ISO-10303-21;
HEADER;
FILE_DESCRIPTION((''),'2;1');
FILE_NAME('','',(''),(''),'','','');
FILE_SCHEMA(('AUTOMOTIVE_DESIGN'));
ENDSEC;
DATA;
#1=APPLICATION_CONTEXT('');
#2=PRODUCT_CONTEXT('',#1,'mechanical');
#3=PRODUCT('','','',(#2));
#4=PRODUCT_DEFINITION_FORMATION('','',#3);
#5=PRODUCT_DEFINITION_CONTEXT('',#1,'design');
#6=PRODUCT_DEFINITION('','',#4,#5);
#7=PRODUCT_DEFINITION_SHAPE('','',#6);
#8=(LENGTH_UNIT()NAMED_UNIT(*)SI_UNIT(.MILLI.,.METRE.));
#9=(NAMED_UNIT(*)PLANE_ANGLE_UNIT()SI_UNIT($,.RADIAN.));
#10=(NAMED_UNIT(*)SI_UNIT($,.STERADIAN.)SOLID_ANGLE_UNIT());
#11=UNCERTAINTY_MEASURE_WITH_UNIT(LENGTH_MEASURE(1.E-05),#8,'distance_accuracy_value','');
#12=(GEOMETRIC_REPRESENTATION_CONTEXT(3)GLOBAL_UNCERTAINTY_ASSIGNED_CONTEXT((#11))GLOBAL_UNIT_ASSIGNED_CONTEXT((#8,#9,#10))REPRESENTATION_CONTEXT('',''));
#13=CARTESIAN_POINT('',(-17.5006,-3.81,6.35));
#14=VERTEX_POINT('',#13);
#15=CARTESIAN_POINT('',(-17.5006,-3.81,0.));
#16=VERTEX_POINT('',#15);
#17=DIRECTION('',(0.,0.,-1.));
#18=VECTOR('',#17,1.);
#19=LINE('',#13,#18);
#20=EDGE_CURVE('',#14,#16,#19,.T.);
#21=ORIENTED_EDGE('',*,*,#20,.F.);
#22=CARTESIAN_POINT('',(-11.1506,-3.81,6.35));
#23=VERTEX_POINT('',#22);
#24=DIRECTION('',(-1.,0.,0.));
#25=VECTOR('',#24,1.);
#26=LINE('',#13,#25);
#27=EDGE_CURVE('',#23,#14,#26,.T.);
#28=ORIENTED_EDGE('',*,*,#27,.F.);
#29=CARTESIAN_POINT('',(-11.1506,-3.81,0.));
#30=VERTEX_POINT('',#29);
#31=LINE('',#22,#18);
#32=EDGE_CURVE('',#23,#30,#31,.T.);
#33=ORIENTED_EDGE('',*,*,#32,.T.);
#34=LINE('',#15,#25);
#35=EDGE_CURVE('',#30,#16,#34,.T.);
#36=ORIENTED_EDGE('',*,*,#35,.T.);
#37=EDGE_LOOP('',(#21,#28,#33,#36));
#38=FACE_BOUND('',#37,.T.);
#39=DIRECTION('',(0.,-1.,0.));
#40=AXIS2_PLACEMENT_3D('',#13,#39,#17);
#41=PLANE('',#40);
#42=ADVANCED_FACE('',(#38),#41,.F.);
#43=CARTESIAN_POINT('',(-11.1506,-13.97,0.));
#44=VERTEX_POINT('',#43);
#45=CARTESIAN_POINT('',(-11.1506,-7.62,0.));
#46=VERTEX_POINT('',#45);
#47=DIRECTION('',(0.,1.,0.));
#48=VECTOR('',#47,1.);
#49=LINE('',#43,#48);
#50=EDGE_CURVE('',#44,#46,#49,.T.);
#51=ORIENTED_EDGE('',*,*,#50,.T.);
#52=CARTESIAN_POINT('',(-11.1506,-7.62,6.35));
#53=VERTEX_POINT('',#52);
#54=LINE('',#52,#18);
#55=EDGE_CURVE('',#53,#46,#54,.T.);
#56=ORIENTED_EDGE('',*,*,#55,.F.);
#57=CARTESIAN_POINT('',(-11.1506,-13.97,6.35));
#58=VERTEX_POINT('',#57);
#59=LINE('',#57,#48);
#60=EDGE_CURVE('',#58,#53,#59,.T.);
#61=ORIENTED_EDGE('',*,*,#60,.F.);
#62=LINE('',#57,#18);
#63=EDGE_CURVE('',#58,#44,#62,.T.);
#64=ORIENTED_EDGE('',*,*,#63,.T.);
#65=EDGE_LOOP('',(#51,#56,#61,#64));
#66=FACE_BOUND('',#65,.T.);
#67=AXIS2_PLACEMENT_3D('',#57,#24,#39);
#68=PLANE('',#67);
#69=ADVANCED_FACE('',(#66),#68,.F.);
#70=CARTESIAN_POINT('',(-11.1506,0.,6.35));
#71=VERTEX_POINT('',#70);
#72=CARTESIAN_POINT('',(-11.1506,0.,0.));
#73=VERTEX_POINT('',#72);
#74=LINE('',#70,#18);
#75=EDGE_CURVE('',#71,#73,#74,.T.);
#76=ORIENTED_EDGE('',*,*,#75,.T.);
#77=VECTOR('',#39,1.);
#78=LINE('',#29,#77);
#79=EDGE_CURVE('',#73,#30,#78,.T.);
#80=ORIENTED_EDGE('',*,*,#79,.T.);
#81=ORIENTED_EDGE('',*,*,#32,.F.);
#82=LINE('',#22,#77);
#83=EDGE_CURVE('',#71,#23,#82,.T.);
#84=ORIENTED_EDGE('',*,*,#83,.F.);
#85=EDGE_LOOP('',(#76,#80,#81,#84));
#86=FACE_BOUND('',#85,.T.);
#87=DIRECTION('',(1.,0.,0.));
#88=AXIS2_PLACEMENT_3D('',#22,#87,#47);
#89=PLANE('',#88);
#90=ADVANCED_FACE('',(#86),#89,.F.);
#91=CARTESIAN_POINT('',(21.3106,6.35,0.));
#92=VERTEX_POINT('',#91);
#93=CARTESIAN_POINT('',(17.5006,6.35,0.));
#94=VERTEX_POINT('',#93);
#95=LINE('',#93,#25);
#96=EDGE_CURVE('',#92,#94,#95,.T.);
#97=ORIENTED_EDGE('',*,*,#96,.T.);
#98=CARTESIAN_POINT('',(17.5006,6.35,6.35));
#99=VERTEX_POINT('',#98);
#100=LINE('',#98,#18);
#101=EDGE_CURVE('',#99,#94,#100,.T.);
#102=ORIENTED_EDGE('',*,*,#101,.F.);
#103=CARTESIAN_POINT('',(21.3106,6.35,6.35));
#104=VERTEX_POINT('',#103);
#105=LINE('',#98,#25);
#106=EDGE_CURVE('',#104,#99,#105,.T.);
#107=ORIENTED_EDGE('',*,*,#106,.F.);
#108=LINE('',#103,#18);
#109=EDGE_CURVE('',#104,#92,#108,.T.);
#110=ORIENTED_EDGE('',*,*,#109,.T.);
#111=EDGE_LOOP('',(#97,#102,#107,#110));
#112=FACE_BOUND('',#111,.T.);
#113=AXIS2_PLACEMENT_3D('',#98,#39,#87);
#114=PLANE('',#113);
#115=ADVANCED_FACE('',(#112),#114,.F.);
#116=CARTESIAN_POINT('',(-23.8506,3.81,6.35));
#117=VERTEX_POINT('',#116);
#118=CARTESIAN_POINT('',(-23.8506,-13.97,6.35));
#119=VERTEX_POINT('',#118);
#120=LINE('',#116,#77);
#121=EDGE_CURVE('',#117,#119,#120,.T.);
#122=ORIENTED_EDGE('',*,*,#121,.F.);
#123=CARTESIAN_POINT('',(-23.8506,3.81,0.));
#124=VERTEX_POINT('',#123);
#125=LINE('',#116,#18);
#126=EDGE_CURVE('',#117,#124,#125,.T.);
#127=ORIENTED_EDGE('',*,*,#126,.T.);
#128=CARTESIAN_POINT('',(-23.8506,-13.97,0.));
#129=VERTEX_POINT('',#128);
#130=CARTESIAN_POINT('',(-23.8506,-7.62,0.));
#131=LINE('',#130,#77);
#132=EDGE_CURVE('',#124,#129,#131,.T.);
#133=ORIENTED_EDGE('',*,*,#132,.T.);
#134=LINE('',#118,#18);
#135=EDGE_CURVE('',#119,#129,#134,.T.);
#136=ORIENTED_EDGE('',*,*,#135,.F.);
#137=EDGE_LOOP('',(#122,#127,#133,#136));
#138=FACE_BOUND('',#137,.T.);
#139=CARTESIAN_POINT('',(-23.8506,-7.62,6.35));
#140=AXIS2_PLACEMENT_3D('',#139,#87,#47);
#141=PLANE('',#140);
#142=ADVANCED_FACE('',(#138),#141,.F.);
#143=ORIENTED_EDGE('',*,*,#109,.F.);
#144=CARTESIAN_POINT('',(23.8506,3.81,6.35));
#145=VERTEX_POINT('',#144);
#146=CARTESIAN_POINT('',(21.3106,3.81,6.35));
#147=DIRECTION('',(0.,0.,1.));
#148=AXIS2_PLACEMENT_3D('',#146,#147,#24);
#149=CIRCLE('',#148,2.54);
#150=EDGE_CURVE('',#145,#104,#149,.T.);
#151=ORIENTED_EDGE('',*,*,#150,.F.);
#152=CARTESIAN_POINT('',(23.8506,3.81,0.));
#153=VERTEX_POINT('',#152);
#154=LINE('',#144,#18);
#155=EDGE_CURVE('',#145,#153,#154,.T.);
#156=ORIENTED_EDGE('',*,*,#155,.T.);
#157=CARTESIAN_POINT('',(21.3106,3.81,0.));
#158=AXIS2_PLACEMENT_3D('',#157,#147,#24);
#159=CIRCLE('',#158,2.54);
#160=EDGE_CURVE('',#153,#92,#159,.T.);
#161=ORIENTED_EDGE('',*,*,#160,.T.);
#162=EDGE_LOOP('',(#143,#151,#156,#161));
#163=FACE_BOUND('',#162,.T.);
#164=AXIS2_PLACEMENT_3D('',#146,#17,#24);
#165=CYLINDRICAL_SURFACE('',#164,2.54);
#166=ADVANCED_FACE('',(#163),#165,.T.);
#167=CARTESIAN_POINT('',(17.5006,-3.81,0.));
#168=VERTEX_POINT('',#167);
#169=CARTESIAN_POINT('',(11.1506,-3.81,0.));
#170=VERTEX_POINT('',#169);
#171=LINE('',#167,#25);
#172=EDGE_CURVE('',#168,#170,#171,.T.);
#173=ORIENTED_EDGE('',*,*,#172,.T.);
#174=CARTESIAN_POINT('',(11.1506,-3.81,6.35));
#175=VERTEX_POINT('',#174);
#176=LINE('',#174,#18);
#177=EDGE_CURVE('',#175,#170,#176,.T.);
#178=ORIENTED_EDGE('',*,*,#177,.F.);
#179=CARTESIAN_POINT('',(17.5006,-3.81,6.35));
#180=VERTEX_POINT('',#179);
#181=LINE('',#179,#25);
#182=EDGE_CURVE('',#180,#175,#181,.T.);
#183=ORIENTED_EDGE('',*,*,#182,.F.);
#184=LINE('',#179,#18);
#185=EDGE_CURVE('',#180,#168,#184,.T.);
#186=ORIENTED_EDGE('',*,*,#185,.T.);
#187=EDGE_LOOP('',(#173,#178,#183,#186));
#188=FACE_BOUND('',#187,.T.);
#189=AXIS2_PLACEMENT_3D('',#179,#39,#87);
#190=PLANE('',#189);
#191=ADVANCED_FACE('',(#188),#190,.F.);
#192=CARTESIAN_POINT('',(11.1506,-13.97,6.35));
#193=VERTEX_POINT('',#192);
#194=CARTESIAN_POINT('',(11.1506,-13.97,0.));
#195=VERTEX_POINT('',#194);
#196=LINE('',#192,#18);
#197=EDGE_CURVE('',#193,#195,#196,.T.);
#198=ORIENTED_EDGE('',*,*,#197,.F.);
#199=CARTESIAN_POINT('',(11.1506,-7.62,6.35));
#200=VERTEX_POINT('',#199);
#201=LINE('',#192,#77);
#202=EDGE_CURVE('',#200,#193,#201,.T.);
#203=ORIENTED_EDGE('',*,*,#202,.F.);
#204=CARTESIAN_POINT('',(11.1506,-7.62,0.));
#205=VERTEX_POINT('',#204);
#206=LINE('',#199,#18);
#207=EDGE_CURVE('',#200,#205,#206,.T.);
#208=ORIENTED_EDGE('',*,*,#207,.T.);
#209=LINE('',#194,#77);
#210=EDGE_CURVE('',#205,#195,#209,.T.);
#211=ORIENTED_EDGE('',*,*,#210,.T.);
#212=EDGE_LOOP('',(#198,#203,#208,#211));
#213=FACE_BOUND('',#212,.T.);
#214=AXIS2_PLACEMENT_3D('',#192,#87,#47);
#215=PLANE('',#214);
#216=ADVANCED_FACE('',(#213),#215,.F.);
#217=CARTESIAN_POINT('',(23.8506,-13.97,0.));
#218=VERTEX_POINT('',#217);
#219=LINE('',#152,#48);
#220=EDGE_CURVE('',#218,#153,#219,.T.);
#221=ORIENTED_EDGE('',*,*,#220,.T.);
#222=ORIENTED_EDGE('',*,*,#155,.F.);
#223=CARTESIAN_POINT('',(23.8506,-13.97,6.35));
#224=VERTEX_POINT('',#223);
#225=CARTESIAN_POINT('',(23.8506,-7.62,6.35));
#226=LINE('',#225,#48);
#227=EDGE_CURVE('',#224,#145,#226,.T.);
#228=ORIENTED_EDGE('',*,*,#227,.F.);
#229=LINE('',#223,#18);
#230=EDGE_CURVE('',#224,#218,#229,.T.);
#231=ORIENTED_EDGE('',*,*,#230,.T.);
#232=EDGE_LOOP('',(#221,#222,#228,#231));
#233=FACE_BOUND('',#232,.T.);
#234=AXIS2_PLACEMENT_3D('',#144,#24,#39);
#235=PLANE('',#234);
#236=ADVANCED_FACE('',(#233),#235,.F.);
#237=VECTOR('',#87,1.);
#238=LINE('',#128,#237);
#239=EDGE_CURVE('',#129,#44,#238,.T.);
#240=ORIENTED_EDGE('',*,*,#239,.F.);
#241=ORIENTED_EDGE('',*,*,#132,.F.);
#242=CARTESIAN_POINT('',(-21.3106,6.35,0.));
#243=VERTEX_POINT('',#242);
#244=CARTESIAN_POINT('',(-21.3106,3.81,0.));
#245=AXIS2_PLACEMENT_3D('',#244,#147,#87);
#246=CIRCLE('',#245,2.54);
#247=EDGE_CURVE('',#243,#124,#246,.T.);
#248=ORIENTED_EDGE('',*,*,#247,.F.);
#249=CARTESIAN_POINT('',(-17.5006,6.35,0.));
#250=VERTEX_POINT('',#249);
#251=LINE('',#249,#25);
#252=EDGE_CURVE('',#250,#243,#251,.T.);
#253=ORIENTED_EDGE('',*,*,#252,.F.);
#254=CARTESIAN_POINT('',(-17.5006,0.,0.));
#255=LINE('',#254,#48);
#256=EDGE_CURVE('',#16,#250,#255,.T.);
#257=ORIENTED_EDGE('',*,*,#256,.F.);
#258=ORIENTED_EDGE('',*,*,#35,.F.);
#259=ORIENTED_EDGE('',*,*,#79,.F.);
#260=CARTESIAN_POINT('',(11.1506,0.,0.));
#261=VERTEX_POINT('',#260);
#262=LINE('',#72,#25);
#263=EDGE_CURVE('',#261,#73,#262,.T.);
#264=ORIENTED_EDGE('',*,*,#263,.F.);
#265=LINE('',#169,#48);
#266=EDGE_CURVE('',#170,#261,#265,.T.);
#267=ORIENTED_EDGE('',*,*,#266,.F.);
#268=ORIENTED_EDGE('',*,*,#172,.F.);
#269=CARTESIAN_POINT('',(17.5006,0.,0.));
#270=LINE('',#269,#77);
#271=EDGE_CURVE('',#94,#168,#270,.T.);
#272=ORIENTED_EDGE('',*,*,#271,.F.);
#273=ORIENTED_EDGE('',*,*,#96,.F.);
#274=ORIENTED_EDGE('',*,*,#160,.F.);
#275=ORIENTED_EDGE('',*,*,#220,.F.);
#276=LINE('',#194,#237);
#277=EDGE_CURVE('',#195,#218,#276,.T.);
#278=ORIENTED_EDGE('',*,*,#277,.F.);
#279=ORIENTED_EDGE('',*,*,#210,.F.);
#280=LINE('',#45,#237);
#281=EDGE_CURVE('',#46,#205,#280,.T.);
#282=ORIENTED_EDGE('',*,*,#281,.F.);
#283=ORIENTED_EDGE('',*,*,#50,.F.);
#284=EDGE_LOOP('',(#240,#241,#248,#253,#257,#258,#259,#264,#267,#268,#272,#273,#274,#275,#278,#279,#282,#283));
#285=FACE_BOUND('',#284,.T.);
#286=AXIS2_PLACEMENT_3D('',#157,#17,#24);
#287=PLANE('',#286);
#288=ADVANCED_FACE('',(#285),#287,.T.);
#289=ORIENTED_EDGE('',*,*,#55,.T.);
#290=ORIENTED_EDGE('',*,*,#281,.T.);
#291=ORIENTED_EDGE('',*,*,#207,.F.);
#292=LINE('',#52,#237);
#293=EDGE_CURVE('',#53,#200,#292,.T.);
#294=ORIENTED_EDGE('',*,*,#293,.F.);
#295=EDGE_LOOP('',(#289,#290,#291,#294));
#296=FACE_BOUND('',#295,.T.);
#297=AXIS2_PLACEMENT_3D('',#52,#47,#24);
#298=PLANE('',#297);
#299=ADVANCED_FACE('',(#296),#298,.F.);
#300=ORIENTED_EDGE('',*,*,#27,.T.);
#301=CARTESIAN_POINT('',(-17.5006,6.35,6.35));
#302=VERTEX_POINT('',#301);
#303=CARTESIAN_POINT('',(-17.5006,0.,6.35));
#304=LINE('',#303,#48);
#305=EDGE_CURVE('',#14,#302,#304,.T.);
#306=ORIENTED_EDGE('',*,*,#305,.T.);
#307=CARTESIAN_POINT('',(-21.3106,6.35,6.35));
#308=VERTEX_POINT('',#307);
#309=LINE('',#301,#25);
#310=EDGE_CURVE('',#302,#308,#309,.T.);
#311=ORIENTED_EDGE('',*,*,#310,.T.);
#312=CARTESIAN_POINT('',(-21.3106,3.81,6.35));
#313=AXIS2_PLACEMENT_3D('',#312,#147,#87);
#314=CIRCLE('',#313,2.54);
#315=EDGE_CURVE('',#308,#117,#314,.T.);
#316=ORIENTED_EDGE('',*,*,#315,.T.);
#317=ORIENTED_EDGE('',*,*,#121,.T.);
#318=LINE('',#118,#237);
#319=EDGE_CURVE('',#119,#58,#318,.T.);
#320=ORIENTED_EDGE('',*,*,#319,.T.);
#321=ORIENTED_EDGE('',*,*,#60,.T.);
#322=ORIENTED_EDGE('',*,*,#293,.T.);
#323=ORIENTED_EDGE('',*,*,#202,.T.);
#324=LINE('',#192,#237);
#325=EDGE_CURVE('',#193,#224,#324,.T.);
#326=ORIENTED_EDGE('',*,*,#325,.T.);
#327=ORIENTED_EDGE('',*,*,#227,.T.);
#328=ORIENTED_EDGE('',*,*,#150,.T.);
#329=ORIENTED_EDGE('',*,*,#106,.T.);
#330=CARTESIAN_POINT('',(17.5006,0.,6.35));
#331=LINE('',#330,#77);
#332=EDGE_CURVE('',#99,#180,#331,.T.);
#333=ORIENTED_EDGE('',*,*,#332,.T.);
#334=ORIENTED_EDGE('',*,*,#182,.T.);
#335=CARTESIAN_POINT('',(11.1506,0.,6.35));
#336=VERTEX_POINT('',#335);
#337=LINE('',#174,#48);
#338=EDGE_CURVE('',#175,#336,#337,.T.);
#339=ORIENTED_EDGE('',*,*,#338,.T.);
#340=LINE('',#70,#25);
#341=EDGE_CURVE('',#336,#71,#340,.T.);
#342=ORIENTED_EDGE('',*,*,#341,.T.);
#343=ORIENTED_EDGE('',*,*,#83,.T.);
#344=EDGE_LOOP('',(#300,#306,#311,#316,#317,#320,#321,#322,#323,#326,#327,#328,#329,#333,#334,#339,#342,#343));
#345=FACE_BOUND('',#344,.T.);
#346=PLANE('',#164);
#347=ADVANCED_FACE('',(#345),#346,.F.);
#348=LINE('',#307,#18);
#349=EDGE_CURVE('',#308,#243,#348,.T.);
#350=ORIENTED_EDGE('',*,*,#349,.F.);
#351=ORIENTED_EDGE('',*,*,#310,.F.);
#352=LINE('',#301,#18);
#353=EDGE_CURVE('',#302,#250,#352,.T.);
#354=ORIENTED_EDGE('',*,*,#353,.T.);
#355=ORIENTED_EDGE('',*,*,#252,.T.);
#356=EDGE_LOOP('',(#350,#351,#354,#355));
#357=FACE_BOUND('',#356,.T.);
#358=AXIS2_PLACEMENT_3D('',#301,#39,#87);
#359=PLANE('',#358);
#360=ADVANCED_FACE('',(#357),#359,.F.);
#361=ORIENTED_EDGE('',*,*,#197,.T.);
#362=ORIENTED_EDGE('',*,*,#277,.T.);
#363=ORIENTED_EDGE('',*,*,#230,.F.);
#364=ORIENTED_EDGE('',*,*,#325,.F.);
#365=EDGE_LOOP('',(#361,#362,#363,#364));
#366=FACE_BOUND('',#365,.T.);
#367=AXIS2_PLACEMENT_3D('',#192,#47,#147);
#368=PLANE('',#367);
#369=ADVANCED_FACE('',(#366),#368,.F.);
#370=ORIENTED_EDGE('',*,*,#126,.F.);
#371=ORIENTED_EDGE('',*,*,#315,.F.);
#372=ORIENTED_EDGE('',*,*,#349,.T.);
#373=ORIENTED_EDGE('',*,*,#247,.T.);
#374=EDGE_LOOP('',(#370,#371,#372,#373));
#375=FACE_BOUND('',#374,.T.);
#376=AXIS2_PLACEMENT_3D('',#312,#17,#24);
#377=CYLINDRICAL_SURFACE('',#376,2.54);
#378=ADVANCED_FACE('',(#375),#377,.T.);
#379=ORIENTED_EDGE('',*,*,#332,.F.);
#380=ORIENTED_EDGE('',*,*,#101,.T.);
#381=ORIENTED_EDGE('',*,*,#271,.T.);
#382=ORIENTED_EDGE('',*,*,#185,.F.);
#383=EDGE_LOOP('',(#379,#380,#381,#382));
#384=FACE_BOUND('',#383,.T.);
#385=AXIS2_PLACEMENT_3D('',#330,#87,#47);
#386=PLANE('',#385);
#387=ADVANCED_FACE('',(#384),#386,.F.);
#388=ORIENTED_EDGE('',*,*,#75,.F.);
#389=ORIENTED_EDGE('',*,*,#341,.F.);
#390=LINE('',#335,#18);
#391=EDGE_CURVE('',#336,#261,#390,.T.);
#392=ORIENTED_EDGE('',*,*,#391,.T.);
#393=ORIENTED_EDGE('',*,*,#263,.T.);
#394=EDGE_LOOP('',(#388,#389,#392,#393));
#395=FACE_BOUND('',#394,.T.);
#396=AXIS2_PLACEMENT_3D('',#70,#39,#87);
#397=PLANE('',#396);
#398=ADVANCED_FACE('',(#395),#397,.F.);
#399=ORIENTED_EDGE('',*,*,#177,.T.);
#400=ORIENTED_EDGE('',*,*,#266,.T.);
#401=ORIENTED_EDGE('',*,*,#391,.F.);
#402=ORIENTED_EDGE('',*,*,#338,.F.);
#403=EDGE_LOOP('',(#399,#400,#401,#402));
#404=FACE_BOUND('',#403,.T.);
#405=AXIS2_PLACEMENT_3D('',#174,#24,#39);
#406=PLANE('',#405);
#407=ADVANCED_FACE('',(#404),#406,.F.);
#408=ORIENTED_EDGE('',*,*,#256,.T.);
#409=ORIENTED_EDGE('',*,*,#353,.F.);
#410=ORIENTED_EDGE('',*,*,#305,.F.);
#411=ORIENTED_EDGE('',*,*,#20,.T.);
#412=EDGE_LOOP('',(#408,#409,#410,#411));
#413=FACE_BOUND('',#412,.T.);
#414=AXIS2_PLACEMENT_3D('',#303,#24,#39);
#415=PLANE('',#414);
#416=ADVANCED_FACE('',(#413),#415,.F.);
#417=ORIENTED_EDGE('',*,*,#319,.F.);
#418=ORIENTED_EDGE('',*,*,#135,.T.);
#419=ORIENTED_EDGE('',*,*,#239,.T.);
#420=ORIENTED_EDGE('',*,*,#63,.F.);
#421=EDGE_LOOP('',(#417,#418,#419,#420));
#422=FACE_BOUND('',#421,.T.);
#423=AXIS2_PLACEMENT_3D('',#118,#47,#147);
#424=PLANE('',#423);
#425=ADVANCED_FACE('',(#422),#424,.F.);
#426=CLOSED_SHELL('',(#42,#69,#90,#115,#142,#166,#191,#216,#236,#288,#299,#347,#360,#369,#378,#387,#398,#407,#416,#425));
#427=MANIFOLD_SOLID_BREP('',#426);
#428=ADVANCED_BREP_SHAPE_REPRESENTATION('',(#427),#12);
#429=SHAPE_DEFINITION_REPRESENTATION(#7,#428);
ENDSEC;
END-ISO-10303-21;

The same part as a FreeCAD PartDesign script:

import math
import FreeCAD as App
import Part
import Sketcher
Q = App.Units.Quantity

doc = App.newDocument("Part")
body = doc.addObject("PartDesign::Body", "Body")

# Sketch on XY plane
sketch1 = doc.addObject("Sketcher::SketchObject", "Sketch")
body.addObject(sketch1)
sketch1.AttachmentSupport = (doc.XY_Plane, [""])
sketch1.MapMode = "FlatFace"
sketch1.addGeometry(Part.LineSegment(App.Vector(11.1506, 0, 0), App.Vector(-11.1506, 0, 0)), False)
sketch1.addGeometry(Part.LineSegment(App.Vector(-11.1506, 0, 0), App.Vector(-11.1506, -3.81, 0)), False)
sketch1.addGeometry(Part.LineSegment(App.Vector(-11.1506, -3.81, 0), App.Vector(-17.5006, -3.81, 0)), False)
sketch1.addGeometry(Part.LineSegment(App.Vector(-17.5006, -3.81, 0), App.Vector(-17.5006, 6.35, 0)), False)
sketch1.addGeometry(Part.LineSegment(App.Vector(-17.5006, 6.35, 0), App.Vector(-21.3106, 6.35, 0)), False)
sketch1.addGeometry(Part.ArcOfCircle(Part.Circle(App.Vector(-21.3106, 3.81, 0), App.Vector(0, 0, 1), 2.54), math.radians(90), math.radians(180)), False)
sketch1.addGeometry(Part.LineSegment(App.Vector(-23.8506, 3.81, 0), App.Vector(-23.8506, -13.97, 0)), False)
sketch1.addGeometry(Part.LineSegment(App.Vector(-23.8506, -13.97, 0), App.Vector(-11.1506, -13.97, 0)), False)
sketch1.addGeometry(Part.LineSegment(App.Vector(-11.1506, -13.97, 0), App.Vector(-11.1506, -7.62, 0)), False)
sketch1.addGeometry(Part.LineSegment(App.Vector(-11.1506, -7.62, 0), App.Vector(11.1506, -7.62, 0)), False)
sketch1.addGeometry(Part.LineSegment(App.Vector(11.1506, -7.62, 0), App.Vector(11.1506, -13.97, 0)), False)
sketch1.addGeometry(Part.LineSegment(App.Vector(11.1506, -13.97, 0), App.Vector(23.8506, -13.97, 0)), False)
sketch1.addGeometry(Part.LineSegment(App.Vector(23.8506, -13.97, 0), App.Vector(23.8506, 3.81, 0)), False)
sketch1.addGeometry(Part.ArcOfCircle(Part.Circle(App.Vector(21.3106, 3.81, 0), App.Vector(0, 0, 1), 2.54), math.radians(0), math.radians(90)), False)
sketch1.addGeometry(Part.LineSegment(App.Vector(21.3106, 6.35, 0), App.Vector(17.5006, 6.35, 0)), False)
sketch1.addGeometry(Part.LineSegment(App.Vector(17.5006, 6.35, 0), App.Vector(17.5006, -3.81, 0)), False)
sketch1.addGeometry(Part.LineSegment(App.Vector(17.5006, -3.81, 0), App.Vector(11.1506, -3.81, 0)), False)
sketch1.addGeometry(Part.LineSegment(App.Vector(11.1506, -3.81, 0), App.Vector(11.1506, 0, 0)), False)
sketch1.addConstraint(Sketcher.Constraint("Coincident", 0, 2, 1, 1))
sketch1.addConstraint(Sketcher.Constraint("Coincident", 1, 2, 2, 1))
sketch1.addConstraint(Sketcher.Constraint("Coincident", 2, 2, 3, 1))
sketch1.addConstraint(Sketcher.Constraint("Coincident", 3, 2, 4, 1))
sketch1.addConstraint(Sketcher.Constraint("Tangent", 4, 2, 5, 1))
sketch1.addConstraint(Sketcher.Constraint("Tangent", 5, 2, 6, 1))
sketch1.addConstraint(Sketcher.Constraint("Coincident", 6, 2, 7, 1))
sketch1.addConstraint(Sketcher.Constraint("Coincident", 7, 2, 8, 1))
sketch1.addConstraint(Sketcher.Constraint("Coincident", 8, 2, 9, 1))
sketch1.addConstraint(Sketcher.Constraint("Coincident", 9, 2, 10, 1))
sketch1.addConstraint(Sketcher.Constraint("Coincident", 10, 2, 11, 1))
sketch1.addConstraint(Sketcher.Constraint("Coincident", 11, 2, 12, 1))
sketch1.addConstraint(Sketcher.Constraint("Tangent", 12, 2, 13, 1))
sketch1.addConstraint(Sketcher.Constraint("Tangent", 13, 2, 14, 1))
sketch1.addConstraint(Sketcher.Constraint("Coincident", 14, 2, 15, 1))
sketch1.addConstraint(Sketcher.Constraint("Coincident", 15, 2, 16, 1))
sketch1.addConstraint(Sketcher.Constraint("Coincident", 16, 2, 17, 1))
sketch1.addConstraint(Sketcher.Constraint("Coincident", 17, 2, 0, 1))
sketch1.addConstraint(Sketcher.Constraint("Horizontal", 0))
sketch1.addConstraint(Sketcher.Constraint("Vertical", 1))
sketch1.addConstraint(Sketcher.Constraint("Horizontal", 2))
sketch1.addConstraint(Sketcher.Constraint("Vertical", 3))
sketch1.addConstraint(Sketcher.Constraint("Horizontal", 4))
sketch1.addConstraint(Sketcher.Constraint("Vertical", 6))
sketch1.addConstraint(Sketcher.Constraint("Horizontal", 7))
sketch1.addConstraint(Sketcher.Constraint("Vertical", 8))
sketch1.addConstraint(Sketcher.Constraint("Horizontal", 9))
sketch1.addConstraint(Sketcher.Constraint("Vertical", 10))
sketch1.addConstraint(Sketcher.Constraint("Horizontal", 11))
sketch1.addConstraint(Sketcher.Constraint("Vertical", 12))
sketch1.addConstraint(Sketcher.Constraint("Horizontal", 14))
sketch1.addConstraint(Sketcher.Constraint("Vertical", 15))
sketch1.addConstraint(Sketcher.Constraint("Horizontal", 16))
sketch1.addConstraint(Sketcher.Constraint("Vertical", 17))
sketch1.addConstraint(Sketcher.Constraint("Equal", 5, 13))
sketch1.addConstraint(Sketcher.Constraint("Symmetric", 0, 2, 17, 2, -1, 1))
sketch1.addConstraint(Sketcher.Constraint("Symmetric", 5, 3, 13, 3, -2))
sketch1.addConstraint(Sketcher.Constraint("Symmetric", 7, 2, 10, 2, -2))
sketch1.addConstraint(Sketcher.Constraint("Symmetric", 2, 2, 15, 2, -2))
sketch1.addConstraint(Sketcher.Constraint("Vertical", 1, 2, 7, 2))
sketch1.addConstraint(Sketcher.Constraint("Equal", 14, 1))
sketch1.addConstraint(Sketcher.Constraint("Equal", 16, 8))
sketch1.addConstraint(Sketcher.Constraint("Radius", 5, Q("0.1 in")))
sketch1.addConstraint(Sketcher.Constraint("DistanceX", 7, 1, 7, 2, Q("0.5 in")))
sketch1.addConstraint(Sketcher.Constraint("DistanceY", 3, 1, 3, 2, Q("0.4 in")))
sketch1.addConstraint(Sketcher.Constraint("DistanceY", 6, 2, 6, 1, Q("0.7 in")))
sketch1.addConstraint(Sketcher.Constraint("DistanceX", 2, 2, 2, 1, Q("0.25 in")))
sketch1.addConstraint(Sketcher.Constraint("DistanceX", 0, 2, 0, 1, Q("0.878 in")))
pad1 = doc.addObject("PartDesign::Pad", "Pad")
body.addObject(pad1)
pad1.Profile = sketch1
pad1.Length = Q("0.25 in")

doc.recompute()
